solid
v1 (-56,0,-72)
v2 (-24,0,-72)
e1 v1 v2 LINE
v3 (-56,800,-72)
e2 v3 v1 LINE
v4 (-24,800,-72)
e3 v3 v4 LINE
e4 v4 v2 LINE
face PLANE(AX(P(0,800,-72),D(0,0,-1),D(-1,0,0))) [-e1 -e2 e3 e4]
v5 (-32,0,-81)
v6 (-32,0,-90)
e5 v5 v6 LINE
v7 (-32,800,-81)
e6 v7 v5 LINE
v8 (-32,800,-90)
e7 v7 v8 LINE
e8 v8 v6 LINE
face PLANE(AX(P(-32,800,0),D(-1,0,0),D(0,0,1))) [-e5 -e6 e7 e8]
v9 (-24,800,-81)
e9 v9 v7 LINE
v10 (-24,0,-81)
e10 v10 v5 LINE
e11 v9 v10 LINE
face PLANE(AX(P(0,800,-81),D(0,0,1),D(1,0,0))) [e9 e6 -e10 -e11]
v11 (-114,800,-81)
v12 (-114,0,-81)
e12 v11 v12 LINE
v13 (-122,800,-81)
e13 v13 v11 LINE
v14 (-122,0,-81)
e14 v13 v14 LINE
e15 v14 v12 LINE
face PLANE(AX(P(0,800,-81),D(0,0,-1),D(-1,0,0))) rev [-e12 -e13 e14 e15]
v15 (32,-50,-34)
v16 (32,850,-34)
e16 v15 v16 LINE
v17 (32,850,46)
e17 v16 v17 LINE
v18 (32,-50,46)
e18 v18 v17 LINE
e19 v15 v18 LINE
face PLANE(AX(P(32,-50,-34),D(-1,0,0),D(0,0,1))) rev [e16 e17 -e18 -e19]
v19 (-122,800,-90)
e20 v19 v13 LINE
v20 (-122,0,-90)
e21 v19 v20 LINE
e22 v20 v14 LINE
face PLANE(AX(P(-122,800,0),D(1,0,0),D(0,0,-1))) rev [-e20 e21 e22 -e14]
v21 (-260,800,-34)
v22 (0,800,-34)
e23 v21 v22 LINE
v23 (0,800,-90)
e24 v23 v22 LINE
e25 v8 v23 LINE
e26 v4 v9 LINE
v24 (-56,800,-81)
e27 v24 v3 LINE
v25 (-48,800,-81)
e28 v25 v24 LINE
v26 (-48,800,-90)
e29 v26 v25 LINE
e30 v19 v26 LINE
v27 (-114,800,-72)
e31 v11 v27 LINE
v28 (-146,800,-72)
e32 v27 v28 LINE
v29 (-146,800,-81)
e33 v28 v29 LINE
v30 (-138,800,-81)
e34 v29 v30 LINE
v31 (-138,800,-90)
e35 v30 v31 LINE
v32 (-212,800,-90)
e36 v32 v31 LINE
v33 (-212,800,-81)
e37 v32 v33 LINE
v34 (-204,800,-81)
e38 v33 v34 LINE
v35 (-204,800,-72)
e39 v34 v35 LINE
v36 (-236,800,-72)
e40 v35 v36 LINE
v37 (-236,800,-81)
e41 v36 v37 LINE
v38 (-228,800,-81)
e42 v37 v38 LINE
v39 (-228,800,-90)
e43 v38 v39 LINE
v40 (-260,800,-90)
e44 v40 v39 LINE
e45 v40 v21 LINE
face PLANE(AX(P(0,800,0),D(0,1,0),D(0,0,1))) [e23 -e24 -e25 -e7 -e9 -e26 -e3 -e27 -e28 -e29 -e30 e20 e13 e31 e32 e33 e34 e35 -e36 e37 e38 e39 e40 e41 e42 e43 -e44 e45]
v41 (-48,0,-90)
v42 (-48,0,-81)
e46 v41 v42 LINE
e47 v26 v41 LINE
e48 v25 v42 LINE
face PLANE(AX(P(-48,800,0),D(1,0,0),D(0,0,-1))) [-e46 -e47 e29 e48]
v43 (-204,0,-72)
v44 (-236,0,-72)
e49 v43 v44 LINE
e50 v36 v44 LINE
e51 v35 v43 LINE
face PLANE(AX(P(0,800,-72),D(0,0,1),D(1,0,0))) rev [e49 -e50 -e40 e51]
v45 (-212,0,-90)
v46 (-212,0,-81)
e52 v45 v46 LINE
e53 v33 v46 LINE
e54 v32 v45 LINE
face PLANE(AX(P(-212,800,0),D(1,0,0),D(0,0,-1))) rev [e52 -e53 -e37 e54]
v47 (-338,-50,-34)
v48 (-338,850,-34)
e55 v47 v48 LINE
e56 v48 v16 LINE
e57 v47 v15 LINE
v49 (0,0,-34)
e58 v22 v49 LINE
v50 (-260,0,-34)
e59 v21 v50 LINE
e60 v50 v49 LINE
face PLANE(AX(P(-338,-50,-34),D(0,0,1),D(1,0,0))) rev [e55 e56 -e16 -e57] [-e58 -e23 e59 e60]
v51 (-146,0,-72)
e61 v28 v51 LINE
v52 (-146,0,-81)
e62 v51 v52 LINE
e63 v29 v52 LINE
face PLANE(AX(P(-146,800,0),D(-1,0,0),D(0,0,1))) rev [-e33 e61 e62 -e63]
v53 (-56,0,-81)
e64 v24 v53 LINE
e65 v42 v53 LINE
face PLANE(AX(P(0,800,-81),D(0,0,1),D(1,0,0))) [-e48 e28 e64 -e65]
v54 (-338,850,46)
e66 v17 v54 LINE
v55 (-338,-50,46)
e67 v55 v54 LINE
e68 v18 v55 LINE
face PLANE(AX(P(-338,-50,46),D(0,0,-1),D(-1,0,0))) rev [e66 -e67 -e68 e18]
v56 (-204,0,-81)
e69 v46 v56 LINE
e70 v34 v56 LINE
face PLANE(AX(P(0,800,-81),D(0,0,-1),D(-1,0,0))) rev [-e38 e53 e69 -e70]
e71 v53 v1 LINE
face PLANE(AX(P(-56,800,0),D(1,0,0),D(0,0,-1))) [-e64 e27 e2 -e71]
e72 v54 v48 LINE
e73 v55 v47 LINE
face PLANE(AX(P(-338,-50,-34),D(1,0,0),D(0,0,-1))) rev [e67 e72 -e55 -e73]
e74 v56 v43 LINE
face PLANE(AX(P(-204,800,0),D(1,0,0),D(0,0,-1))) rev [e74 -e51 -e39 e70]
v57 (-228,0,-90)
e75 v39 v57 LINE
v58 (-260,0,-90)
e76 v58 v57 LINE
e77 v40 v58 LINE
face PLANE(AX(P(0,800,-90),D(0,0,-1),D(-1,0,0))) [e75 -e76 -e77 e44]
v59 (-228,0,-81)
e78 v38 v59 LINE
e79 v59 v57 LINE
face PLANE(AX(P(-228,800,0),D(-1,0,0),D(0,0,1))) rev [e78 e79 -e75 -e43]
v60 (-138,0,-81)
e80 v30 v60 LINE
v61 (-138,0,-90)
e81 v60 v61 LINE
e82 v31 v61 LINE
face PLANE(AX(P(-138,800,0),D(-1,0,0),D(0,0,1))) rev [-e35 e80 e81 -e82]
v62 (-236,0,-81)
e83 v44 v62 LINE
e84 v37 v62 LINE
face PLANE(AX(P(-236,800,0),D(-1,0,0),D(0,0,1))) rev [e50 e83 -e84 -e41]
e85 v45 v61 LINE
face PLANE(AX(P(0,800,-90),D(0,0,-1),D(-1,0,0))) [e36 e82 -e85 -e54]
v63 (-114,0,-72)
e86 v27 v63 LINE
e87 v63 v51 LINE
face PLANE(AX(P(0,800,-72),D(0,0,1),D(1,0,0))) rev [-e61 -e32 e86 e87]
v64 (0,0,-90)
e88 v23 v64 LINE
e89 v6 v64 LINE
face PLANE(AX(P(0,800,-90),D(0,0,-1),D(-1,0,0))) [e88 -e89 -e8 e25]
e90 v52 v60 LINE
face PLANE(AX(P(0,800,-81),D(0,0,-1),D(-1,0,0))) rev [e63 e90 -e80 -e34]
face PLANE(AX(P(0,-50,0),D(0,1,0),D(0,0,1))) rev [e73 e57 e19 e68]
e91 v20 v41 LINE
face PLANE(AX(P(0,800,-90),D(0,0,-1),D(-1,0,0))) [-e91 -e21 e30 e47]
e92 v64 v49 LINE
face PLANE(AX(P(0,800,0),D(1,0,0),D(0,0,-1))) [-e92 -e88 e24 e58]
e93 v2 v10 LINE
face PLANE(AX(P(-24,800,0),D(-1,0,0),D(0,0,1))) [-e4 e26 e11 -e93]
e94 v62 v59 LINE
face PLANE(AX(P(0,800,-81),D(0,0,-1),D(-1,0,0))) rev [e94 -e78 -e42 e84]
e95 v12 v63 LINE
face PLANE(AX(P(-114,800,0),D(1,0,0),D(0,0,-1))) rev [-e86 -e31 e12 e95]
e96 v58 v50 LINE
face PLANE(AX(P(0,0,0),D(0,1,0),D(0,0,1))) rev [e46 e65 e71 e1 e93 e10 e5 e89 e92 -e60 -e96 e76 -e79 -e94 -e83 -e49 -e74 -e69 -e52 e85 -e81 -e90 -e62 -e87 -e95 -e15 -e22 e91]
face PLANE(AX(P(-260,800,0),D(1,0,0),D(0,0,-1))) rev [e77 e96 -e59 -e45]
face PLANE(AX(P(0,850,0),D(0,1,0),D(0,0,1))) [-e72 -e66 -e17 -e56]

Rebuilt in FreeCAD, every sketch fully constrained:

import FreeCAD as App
import Part
import Sketcher


def add_polygon(sketch, points):
    """Adds a closed chain of lines whose ends are joined by coincident constraints."""
    first, n = sketch.GeometryCount, len(points)
    for a, b in zip(points, points[1:] + points[:1]):
        sketch.addGeometry(Part.LineSegment(App.Vector(*a, 0), App.Vector(*b, 0)), False)
    for i in range(n):
        sketch.addConstraint(Sketcher.Constraint("Coincident", first + i, 2, first + (i + 1) % n, 1))

doc = App.newDocument("Part")
params = doc.addObject("Spreadsheet::Sheet", "Params")
for row, (alias, value) in enumerate([
    ("sketch1_width", "32 mm"),
    ("sketch1_width2", "260 mm"),
    ("sketch1_width3", "8 mm"),
    ("sketch1_height", "90 mm"),
    ("sketch1_height2", "9 mm"),
    ("pad1_length", "800 mm"),
    ("sketch2_width", "370 mm"),
    ("sketch2_height", "80 mm"),
    ("pad2_length", "50 mm"),
    ("pad2_length2", "850 mm"),
], start=1):
    params.set(f"A{row}", alias)
    params.set(f"B{row}", "=" + value)
    params.setAlias(f"B{row}", alias)

body = doc.addObject("PartDesign::Body", "Body")

# Sketch on XZ plane
sketch1 = body.newObject("Sketcher::SketchObject", "Sketch")
sketch1.AttachmentSupport = (doc.getObject("XZ_Plane"), [""])
sketch1.MapMode = "FlatFace"
add_polygon(sketch1, [(-228, -90), (-260, -90), (-260, 0), (0, 0), (0, -90), (-32, -90), (-32, -81), (-24, -81), (-24, -72), (-56, -72), (-56, -81), (-48, -81), (-48, -90), (-122, -90), (-122, -81), (-114, -81), (-114, -72), (-146, -72), (-146, -81), (-138, -81), (-138, -90), (-212, -90), (-212, -81), (-204, -81), (-204, -72), (-236, -72), (-236, -81), (-228, -81)])  # lines 0-27
sketch1.addConstraint([
    Sketcher.Constraint("Horizontal", 0),
    Sketcher.Constraint("Vertical", 1),
    Sketcher.Constraint("Horizontal", 2),
    Sketcher.Constraint("Vertical", 3),
    Sketcher.Constraint("Horizontal", 4),
    Sketcher.Constraint("Vertical", 5),
    Sketcher.Constraint("Horizontal", 6),
    Sketcher.Constraint("Vertical", 7),
    Sketcher.Constraint("Horizontal", 8),
    Sketcher.Constraint("Vertical", 9),
    Sketcher.Constraint("Horizontal", 10),
    Sketcher.Constraint("Vertical", 11),
    Sketcher.Constraint("Horizontal", 12),
    Sketcher.Constraint("Vertical", 13),
    Sketcher.Constraint("Horizontal", 14),
    Sketcher.Constraint("Vertical", 15),
    Sketcher.Constraint("Horizontal", 16),
    Sketcher.Constraint("Vertical", 17),
    Sketcher.Constraint("Horizontal", 18),
    Sketcher.Constraint("Vertical", 19),
    Sketcher.Constraint("Horizontal", 20),
    Sketcher.Constraint("Vertical", 21),
    Sketcher.Constraint("Horizontal", 22),
    Sketcher.Constraint("Vertical", 23),
    Sketcher.Constraint("Horizontal", 24),
    Sketcher.Constraint("Vertical", 25),
    Sketcher.Constraint("Horizontal", 26),
    Sketcher.Constraint("Vertical", 27),
    Sketcher.Constraint("Coincident", 2, 2, -1, 1),
    Sketcher.Constraint("Horizontal", 0, 2, 3, 2),
    Sketcher.Constraint("Horizontal", 6, 2, 9, 2),
    Sketcher.Constraint("Horizontal", 4, 2, 11, 2),
    Sketcher.Constraint("Horizontal", 10, 2, 13, 2),
    Sketcher.Constraint("Horizontal", 8, 2, 15, 2),
    Sketcher.Constraint("Horizontal", 14, 2, 17, 2),
    Sketcher.Constraint("Horizontal", 12, 2, 19, 2),
    Sketcher.Constraint("Horizontal", 18, 2, 21, 2),
    Sketcher.Constraint("Horizontal", 16, 2, 23, 2),
    Sketcher.Constraint("Horizontal", 22, 2, 25, 2),
    Sketcher.Constraint("Equal", 0, 4),
    Sketcher.Constraint("Equal", 4, 8),
    Sketcher.Constraint("Equal", 6, 10),
    Sketcher.Constraint("Equal", 10, 14),
    Sketcher.Constraint("Equal", 8, 16),
    Sketcher.Constraint("Equal", 14, 18),
    Sketcher.Constraint("Equal", 12, 20),
    Sketcher.Constraint("Equal", 18, 22),
    Sketcher.Constraint("Equal", 16, 24),
    Sketcher.Constraint("Equal", 22, 26),
    Sketcher.Constraint("Equal", 5, 7),
    Sketcher.Constraint("DistanceX", 0, 2, 0, 1, 32.0),
    Sketcher.Constraint("DistanceX", 2, 1, 2, 2, 260.0),
    Sketcher.Constraint("DistanceX", 6, 1, 6, 2, 8.0),
    Sketcher.Constraint("DistanceY", 1, 1, 1, 2, 90.0),
    Sketcher.Constraint("DistanceY", 5, 1, 5, 2, 9.0),
])
sketch1.setExpression("Constraints[78]", "Params.sketch1_width")
sketch1.setExpression("Constraints[79]", "Params.sketch1_width2")
sketch1.setExpression("Constraints[80]", "Params.sketch1_width3")
sketch1.setExpression("Constraints[81]", "Params.sketch1_height")
sketch1.setExpression("Constraints[82]", "Params.sketch1_height2")
pad1 = body.newObject("PartDesign::Pad", "Pad")
pad1.Profile = sketch1
pad1.setExpression("Length", "Params.pad1_length")
pad1.Reversed = True

# Sketch on XZ plane
sketch2 = body.newObject("Sketcher::SketchObject", "Sketch001")
sketch2.AttachmentSupport = (doc.getObject("XZ_Plane"), [""])
sketch2.MapMode = "FlatFace"
add_polygon(sketch2, [(-338, 46), (-338, -34), (32, -34), (32, 46)])  # lines 0-3
sketch2.addConstraint([
    Sketcher.Constraint("Vertical", 0),
    Sketcher.Constraint("Horizontal", 1),
    Sketcher.Constraint("Vertical", 2),
    Sketcher.Constraint("Horizontal", 3),
    Sketcher.Constraint("DistanceX", 1, 1, 1, 2, 370.0),
    Sketcher.Constraint("DistanceY", 0, 2, 0, 1, 80.0),
    Sketcher.Constraint("DistanceX", 0, 2, -1, 1, 338.0),
    Sketcher.Constraint("DistanceY", 0, 2, -1, 1, 34.0),
])
sketch2.setExpression("Constraints[8]", "Params.sketch2_width")
sketch2.setExpression("Constraints[9]", "Params.sketch2_height")
pad2 = body.newObject("PartDesign::Pad", "Pad001")
pad2.Profile = sketch2
pad2.Type = "TwoLengths"
pad2.setExpression("Length", "Params.pad2_length")
pad2.setExpression("Length2", "Params.pad2_length2")

doc.recompute()
